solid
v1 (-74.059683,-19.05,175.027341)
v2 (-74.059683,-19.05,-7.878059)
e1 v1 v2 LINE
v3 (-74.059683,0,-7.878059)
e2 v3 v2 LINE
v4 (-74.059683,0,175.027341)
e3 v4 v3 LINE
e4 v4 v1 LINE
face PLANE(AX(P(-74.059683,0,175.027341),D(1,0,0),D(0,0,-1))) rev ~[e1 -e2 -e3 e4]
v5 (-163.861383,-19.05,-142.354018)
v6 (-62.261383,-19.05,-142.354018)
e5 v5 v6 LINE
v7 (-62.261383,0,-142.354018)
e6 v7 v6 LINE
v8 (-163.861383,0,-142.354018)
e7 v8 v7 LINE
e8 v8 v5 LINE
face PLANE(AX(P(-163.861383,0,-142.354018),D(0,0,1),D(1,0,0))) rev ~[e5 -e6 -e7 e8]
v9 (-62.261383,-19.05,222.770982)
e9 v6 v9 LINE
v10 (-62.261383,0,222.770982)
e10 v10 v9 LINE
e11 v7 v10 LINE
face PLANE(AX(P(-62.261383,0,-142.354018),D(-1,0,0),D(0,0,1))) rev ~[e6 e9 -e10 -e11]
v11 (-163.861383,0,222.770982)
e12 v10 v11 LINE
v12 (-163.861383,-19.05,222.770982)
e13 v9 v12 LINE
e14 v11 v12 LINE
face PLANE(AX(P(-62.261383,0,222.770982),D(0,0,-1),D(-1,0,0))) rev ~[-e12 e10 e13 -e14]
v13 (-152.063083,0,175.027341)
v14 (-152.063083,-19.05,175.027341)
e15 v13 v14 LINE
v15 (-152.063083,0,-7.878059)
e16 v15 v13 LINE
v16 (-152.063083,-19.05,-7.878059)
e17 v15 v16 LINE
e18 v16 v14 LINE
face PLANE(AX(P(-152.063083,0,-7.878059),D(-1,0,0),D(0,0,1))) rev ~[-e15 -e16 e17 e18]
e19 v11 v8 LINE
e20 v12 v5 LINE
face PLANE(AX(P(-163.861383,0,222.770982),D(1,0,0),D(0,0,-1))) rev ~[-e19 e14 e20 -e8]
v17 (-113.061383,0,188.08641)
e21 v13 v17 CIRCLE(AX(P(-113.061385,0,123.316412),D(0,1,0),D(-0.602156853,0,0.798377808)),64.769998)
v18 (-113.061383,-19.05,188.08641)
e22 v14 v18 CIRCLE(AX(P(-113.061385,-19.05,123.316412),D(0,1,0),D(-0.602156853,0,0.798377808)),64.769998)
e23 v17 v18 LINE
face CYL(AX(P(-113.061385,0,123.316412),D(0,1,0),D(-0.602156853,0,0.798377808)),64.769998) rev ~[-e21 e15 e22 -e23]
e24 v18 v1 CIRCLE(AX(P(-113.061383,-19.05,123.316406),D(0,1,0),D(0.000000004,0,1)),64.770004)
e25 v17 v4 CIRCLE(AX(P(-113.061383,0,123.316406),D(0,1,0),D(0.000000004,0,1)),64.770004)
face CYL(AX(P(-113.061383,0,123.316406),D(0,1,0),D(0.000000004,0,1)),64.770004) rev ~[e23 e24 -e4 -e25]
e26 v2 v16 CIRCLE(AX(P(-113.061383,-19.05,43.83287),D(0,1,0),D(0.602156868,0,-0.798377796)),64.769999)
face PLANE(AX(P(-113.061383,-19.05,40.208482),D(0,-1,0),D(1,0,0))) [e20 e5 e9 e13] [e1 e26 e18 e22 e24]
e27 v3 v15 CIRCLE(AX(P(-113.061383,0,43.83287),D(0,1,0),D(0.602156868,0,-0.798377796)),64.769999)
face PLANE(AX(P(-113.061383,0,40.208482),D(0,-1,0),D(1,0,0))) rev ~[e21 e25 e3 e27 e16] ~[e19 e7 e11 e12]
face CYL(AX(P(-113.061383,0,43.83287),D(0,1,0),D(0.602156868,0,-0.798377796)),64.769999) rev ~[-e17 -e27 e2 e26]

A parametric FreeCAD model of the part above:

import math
import FreeCAD as App
import Part
import Sketcher
from FreeCAD import Vector
Q = App.Units.Quantity


def add_polygon(sketch, points):
    """Adds a closed chain of lines whose ends are joined by coincident constraints."""
    first, n = sketch.GeometryCount, len(points)
    for a, b in zip(points, points[1:] + points[:1]):
        sketch.addGeometry(Part.LineSegment(App.Vector(*a, 0), App.Vector(*b, 0)), False)
    for i in range(n):
        sketch.addConstraint(Sketcher.Constraint("Coincident", first + i, 2, first + (i + 1) % n, 1))

doc = App.newDocument("Part")
body = doc.addObject("PartDesign::Body", "Body")

sketch1 = body.newObject("Sketcher::SketchObject", "Sketch")
sketch1.AttachmentSupport = (doc.getObject("XZ_Plane"), [""])
sketch1.MapMode = "FlatFace"
add_polygon(sketch1, [(-164, 223), (-164, -142), (-62, -142), (-62, 223)])
sketch1.addGeometry(Part.LineSegment(Vector(-152, -8, 0), Vector(-152, 175, 0)), False)
sketch1.addGeometry(Part.ArcOfCircle(Part.Circle(Vector(-113, 123, 0), Vector(0, 0, 1), 65), math.radians(90), math.radians(127)), False)
sketch1.addGeometry(Part.ArcOfCircle(Part.Circle(Vector(-113, 123, 0), Vector(0, 0, 1), 65), math.radians(53), math.radians(90)), False)
sketch1.addGeometry(Part.LineSegment(Vector(-74, 175, 0), Vector(-74, -8, 0)), False)
sketch1.addGeometry(Part.ArcOfCircle(Part.Circle(Vector(-113, 44, 0), Vector(0, 0, 1), 65), math.radians(-127), math.radians(-53)), False)
sketch1.addConstraint([
    Sketcher.Constraint("Coincident", 4, 2, 5, 2),
    Sketcher.Constraint("Tangent", 5, 1, 6, 2),
    Sketcher.Constraint("Coincident", 6, 1, 7, 1),
    Sketcher.Constraint("Coincident", 7, 2, 8, 2),
    Sketcher.Constraint("Coincident", 8, 1, 4, 1),
    Sketcher.Constraint("Vertical", 0),
    Sketcher.Constraint("Horizontal", 1),
    Sketcher.Constraint("Vertical", 2),
    Sketcher.Constraint("Horizontal", 3),
    Sketcher.Constraint("Vertical", 4),
    Sketcher.Constraint("Vertical", 7),
    Sketcher.Constraint("Equal", 5, 8),
    Sketcher.Constraint("Horizontal", 4, 2, 6, 1),
    Sketcher.Constraint("Horizontal", 7, 2, 8, 1),
    Sketcher.Constraint("Vertical", 6, 3, 8, 3),
    Sketcher.Constraint("Vertical", 8, 3, 5, 1),
    Sketcher.Constraint("DistanceX", 1, 1, 1, 2, Q("4 in")),
    Sketcher.Constraint("Radius", 5, Q("2.5499999 in")),
    Sketcher.Constraint("DistanceX", 0, 2, 8, 3, Q("2 in")),
    Sketcher.Constraint("DistanceY", 0, 2, 0, 1, Q("14.375 in")),
    Sketcher.Constraint("DistanceY", 4, 1, 4, 2, Q("7.201 in")),
    Sketcher.Constraint("DistanceX", 4, 2, 6, 1, Q("3.071 in")),
    Sketcher.Constraint("DistanceY", -1, 1, 5, 3, Q("123.316412 mm")),
    Sketcher.Constraint("DistanceY", 0, 2, -1, 1, Q("142.354018 mm")),
    Sketcher.Constraint("DistanceX", 5, 3, -1, 1, Q("113.061385 mm")),
])
pad1 = body.newObject("PartDesign::Pad", "Pad")
pad1.Profile = sketch1
pad1.Length = Q("0.75 in")

doc.recompute()
